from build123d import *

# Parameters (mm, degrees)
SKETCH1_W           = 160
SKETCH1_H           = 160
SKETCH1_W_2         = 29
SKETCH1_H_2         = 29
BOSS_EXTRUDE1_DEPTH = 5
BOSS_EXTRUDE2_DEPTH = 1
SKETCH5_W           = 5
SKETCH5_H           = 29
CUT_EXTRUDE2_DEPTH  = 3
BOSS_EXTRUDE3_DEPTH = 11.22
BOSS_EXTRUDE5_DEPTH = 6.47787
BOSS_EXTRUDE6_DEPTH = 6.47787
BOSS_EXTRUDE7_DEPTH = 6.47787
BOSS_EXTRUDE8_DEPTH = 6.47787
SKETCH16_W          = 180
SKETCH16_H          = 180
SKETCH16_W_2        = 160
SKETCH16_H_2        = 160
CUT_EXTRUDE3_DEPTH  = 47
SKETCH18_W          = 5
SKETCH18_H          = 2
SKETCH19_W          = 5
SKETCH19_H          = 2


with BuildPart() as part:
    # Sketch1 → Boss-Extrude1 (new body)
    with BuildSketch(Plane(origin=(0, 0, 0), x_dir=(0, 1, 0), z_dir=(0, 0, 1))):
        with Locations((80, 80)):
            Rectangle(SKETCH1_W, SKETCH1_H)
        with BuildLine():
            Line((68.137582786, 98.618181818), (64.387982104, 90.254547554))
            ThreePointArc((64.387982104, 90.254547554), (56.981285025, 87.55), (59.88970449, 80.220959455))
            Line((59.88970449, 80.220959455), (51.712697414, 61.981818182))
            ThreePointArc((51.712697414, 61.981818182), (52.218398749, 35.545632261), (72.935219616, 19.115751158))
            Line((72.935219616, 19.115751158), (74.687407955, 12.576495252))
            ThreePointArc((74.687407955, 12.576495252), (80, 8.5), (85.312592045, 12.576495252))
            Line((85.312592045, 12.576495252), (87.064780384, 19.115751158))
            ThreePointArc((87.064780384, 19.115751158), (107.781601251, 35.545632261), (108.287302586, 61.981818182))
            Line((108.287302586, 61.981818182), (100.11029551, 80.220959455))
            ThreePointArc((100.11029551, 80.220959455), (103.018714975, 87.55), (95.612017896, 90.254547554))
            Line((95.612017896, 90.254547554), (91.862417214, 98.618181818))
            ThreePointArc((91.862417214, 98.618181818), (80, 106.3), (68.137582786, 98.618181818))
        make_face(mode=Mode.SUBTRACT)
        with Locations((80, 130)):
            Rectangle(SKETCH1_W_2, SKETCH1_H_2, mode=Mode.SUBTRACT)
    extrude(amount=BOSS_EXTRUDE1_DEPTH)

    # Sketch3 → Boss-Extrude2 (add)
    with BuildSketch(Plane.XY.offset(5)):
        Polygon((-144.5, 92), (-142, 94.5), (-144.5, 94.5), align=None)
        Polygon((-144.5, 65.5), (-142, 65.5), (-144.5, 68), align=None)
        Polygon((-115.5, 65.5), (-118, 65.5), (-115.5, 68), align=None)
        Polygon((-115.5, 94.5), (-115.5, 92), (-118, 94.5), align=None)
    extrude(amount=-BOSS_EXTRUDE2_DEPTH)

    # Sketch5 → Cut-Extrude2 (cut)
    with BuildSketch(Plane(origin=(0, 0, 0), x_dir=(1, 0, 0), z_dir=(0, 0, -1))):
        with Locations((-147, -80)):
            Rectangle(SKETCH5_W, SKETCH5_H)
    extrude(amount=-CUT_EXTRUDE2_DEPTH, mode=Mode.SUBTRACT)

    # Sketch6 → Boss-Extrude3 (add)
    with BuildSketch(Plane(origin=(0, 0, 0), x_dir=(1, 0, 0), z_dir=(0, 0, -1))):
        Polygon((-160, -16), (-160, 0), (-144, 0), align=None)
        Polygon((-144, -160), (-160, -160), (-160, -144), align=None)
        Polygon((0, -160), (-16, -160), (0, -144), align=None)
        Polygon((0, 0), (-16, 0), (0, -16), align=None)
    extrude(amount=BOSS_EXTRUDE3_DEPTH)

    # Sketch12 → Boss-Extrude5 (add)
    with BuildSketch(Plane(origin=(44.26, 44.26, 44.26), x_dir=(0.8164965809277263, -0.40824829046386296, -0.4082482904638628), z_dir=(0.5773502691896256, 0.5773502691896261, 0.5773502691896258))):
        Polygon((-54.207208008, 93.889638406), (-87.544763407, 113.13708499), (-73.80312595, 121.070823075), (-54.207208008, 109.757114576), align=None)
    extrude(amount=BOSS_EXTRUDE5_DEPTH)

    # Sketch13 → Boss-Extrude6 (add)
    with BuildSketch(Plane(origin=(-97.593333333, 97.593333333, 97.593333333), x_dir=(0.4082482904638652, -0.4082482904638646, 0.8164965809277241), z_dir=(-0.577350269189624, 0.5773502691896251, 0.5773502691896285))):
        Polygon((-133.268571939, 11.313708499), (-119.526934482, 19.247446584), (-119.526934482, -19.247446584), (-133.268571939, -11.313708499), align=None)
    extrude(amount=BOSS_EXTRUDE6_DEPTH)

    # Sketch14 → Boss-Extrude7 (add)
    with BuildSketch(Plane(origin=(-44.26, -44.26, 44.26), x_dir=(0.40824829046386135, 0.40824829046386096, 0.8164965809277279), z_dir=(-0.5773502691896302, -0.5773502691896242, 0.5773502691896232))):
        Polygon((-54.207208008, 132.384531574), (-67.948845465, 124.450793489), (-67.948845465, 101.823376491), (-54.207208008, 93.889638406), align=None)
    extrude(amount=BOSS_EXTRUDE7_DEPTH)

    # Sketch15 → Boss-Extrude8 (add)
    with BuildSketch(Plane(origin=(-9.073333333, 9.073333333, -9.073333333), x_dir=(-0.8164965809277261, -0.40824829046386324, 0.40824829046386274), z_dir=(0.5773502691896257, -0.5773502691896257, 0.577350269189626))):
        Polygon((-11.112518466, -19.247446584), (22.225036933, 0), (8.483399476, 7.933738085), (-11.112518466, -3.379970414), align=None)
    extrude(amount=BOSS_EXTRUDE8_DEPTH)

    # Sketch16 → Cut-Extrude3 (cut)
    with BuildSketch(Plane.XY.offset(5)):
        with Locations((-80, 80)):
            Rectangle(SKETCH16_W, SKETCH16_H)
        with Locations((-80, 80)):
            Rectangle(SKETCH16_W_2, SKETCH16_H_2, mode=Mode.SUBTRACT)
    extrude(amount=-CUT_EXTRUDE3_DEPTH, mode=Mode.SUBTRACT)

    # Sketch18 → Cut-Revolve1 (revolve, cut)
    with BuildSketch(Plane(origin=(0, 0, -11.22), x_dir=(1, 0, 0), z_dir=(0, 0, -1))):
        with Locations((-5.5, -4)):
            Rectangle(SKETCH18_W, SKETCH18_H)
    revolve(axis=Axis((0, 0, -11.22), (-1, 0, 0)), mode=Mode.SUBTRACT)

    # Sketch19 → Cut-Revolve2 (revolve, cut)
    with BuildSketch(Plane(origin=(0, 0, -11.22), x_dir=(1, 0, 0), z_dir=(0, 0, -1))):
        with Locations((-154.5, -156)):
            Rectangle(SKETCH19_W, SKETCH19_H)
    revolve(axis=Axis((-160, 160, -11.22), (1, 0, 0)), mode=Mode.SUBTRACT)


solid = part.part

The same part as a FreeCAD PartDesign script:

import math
import FreeCAD as App
import Part
import Sketcher
Q = App.Units.Quantity


def add_polygon(sketch, points):
    """Adds a closed chain of lines whose ends are joined by coincident constraints."""
    first, n = sketch.GeometryCount, len(points)
    for a, b in zip(points, points[1:] + points[:1]):
        sketch.addGeometry(Part.LineSegment(App.Vector(*a, 0), App.Vector(*b, 0)), False)
    for i in range(n):
        sketch.addConstraint(Sketcher.Constraint("Coincident", first + i, 2, first + (i + 1) % n, 1))

doc = App.newDocument("Part")
body = doc.addObject("PartDesign::Body", "Body")

sketch1 = body.newObject("Sketcher::SketchObject", "Sketch")
sketch1.AttachmentSupport = (doc.getObject("XY_Plane"), [""])
sketch1.MapMode = "FlatFace"
add_polygon(sketch1, [(-160, 0), (0, 0), (0, 160), (-160, 160)])
sketch1.addGeometry(Part.LineSegment(App.Vector(-90, 64, 0), App.Vector(-99, 68, 0)), False)
sketch1.addGeometry(Part.ArcOfCircle(Part.Circle(App.Vector(-93, 80, 0), App.Vector(0, 0, 1), 13), math.radians(114), math.radians(246)), False)
sketch1.addGeometry(Part.LineSegment(App.Vector(-99, 92, 0), App.Vector(-90, 96, 0)), False)
sketch1.addGeometry(Part.ArcOfCircle(Part.Circle(App.Vector(-85, 98, 0), App.Vector(0, 0, 1), 6), math.radians(23), math.radians(206)), False)
sketch1.addGeometry(Part.LineSegment(App.Vector(-80, 100, 0), App.Vector(-62, 108, 0)), False)
sketch1.addGeometry(Part.ArcOfCircle(Part.Circle(App.Vector(-49, 80, 0), App.Vector(0, 0, 1), 31), math.radians(13), math.radians(114)), False)
sketch1.addGeometry(Part.LineSegment(App.Vector(-19, 87, 0), App.Vector(-13, 85, 0)), False)
sketch1.addGeometry(Part.ArcOfCircle(Part.Circle(App.Vector(-14, 80, 0), App.Vector(0, 0, 1), 6), math.radians(-75), math.radians(75)), False)
sketch1.addGeometry(Part.LineSegment(App.Vector(-13, 75, 0), App.Vector(-19, 73, 0)), False)
sketch1.addGeometry(Part.ArcOfCircle(Part.Circle(App.Vector(-49, 80, 0), App.Vector(0, 0, 1), 31), math.radians(-114), math.radians(-13)), False)
sketch1.addGeometry(Part.LineSegment(App.Vector(-62, 52, 0), App.Vector(-80, 60, 0)), False)
sketch1.addGeometry(Part.ArcOfCircle(Part.Circle(App.Vector(-85, 62, 0), App.Vector(0, 0, 1), 6), math.radians(154), math.radians(337)), False)
add_polygon(sketch1, [(-116, 94), (-116, 66), (-144, 66), (-144, 94)])
sketch1.addConstraint([
    Sketcher.Constraint("Tangent", 4, 2, 5, 2),
    Sketcher.Constraint("Tangent", 5, 1, 6, 1),
    Sketcher.Constraint("Coincident", 6, 2, 7, 2),
    Sketcher.Constraint("Coincident", 7, 1, 8, 1),
    Sketcher.Constraint("Tangent", 8, 2, 9, 2),
    Sketcher.Constraint("Coincident", 9, 1, 10, 1),
    Sketcher.Constraint("Tangent", 10, 2, 11, 2),
    Sketcher.Constraint("Tangent", 11, 1, 12, 1),
    Sketcher.Constraint("Coincident", 12, 2, 13, 2),
    Sketcher.Constraint("Tangent", 13, 1, 14, 1),
    Sketcher.Constraint("Coincident", 14, 2, 15, 2),
    Sketcher.Constraint("Coincident", 15, 1, 4, 1),
    Sketcher.Constraint("Horizontal", 0),
    Sketcher.Constraint("Vertical", 1),
    Sketcher.Constraint("Horizontal", 2),
    Sketcher.Constraint("Vertical", 3),
    Sketcher.Constraint("Vertical", 16),
    Sketcher.Constraint("Horizontal", 17),
    Sketcher.Constraint("Vertical", 18),
    Sketcher.Constraint("Horizontal", 19),
    Sketcher.Constraint("Coincident", 0, 2, -1, 1),
    Sketcher.Constraint("Coincident", 13, 3, 9, 3),
    Sketcher.Constraint("Equal", 7, 11),
    Sketcher.Constraint("Equal", 9, 13),
    Sketcher.Constraint("Equal", 11, 15),
    Sketcher.Constraint("Parallel", 6, 8),
    Sketcher.Constraint("Parallel", 4, 14),
    Sketcher.Constraint("Horizontal", 5, 3, 9, 3),
    Sketcher.Constraint("Horizontal", 9, 3, 11, 3),
    Sketcher.Constraint("Vertical", 7, 3, 15, 3),
    Sketcher.Constraint("Vertical", 4, 2, 5, 1),
    Sketcher.Constraint("Vertical", 10, 2, 11, 1),
    Sketcher.Constraint("Vertical", 7, 1, 14, 2),
    Sketcher.Constraint("Equal", 2, 1),
    Sketcher.Constraint("Equal", 19, 16),
    Sketcher.Constraint("Radius", 5, 13.0),
    Sketcher.Constraint("Radius", 9, 31.0),
    Sketcher.Constraint("Radius", 7, 5.5),
    Sketcher.Constraint("DistanceX", 0, 1, 0, 2, 160.0),
    Sketcher.Constraint("DistanceX", 17, 2, 17, 1, 29.0),
    Sketcher.Constraint("Angle", 10, Q("-15 deg")),
    Sketcher.Constraint("DistanceY", -1, 1, 5, 3, 80.0),
    Sketcher.Constraint("DistanceY", -1, 1, 7, 3, 98.0),
    Sketcher.Constraint("DistanceX", 11, 3, -1, 1, 14.0),
    Sketcher.Constraint("DistanceX", 5, 3, 7, 3, 8.0),
    Sketcher.Constraint("DistanceX", 7, 3, 9, 3, 36.0),
    Sketcher.Constraint("DistanceX", 5, 3, -1, 1, 93.3),
    Sketcher.Constraint("DistanceX", 16, 2, -1, 1, 115.5),
    Sketcher.Constraint("DistanceY", -1, 1, 16, 2, 65.5),
    Sketcher.Constraint("DistanceY", 5, 1, 6, 2, 3.749601),
])
pad1 = body.newObject("PartDesign::Pad", "Pad")
pad1.Profile = sketch1
pad1.Length = 5

sketch2 = body.newObject("Sketcher::SketchObject", "Sketch001")
sketch2.AttachmentSupport = (doc.getObject("XY_Plane"), [""])
sketch2.MapMode = "FlatFace"
sketch2.AttachmentOffset = App.Placement(App.Vector(0, 0, 5), App.Rotation())
add_polygon(sketch2, [(-144.5, 92), (-142, 94.5), (-144.5, 94.5)])
add_polygon(sketch2, [(-144.5, 65.5), (-142, 65.5), (-144.5, 68)])
add_polygon(sketch2, [(-118, 65.5), (-115.5, 65.5), (-115.5, 68)])
add_polygon(sketch2, [(-115.5, 92), (-115.5, 94.5), (-118, 94.5)])
sketch2.addConstraint([
    Sketcher.Constraint("Horizontal", 1),
    Sketcher.Constraint("Vertical", 2),
    Sketcher.Constraint("Horizontal", 3),
    Sketcher.Constraint("Vertical", 5),
    Sketcher.Constraint("Horizontal", 6),
    Sketcher.Constraint("Vertical", 7),
    Sketcher.Constraint("Vertical", 9),
    Sketcher.Constraint("Horizontal", 10),
    Sketcher.Constraint("Perpendicular", 0, 4),
    Sketcher.Constraint("Perpendicular", 4, 8),
    Sketcher.Constraint("Perpendicular", 8, 11),
    Sketcher.Constraint("Horizontal", 5, 2, 6, 2),
    Sketcher.Constraint("Horizontal", 4, 2, 7, 2),
    Sketcher.Constraint("Horizontal", 1, 2, 9, 2),
    Sketcher.Constraint("Horizontal", 2, 2, 11, 2),
    Sketcher.Constraint("Vertical", 0, 2, 3, 2),
    Sketcher.Constraint("Vertical", 2, 2, 4, 2),
    Sketcher.Constraint("Vertical", 7, 2, 9, 2),
    Sketcher.Constraint("Vertical", 8, 2, 10, 2),
    Sketcher.Constraint("DistanceX", 1, 2, 1, 1, 2.5),
    Sketcher.Constraint("DistanceX", 0, 2, -1, 1, 142.0),
    Sketcher.Constraint("DistanceY", -1, 1, 2, 2, 92.0),
    Sketcher.Constraint("DistanceY", -1, 1, 4, 2, 68.0),
    Sketcher.Constraint("DistanceX", 8, 2, -1, 1, 118.0),
])
pad2 = body.newObject("PartDesign::Pad", "Pad001")
pad2.Profile = sketch2
pad2.Length = 1
pad2.Reversed = True

sketch3 = body.newObject("Sketcher::SketchObject", "Sketch002")
sketch3.AttachmentSupport = (doc.getObject("XY_Plane"), [""])
sketch3.MapMode = "FlatFace"
add_polygon(sketch3, [(-150, 66), (-150, 94), (-144, 94), (-144, 66)])
sketch3.addConstraint([
    Sketcher.Constraint("Vertical", 0),
    Sketcher.Constraint("Horizontal", 1),
    Sketcher.Constraint("Vertical", 2),
    Sketcher.Constraint("Horizontal", 3),
    Sketcher.Constraint("DistanceX", 1, 1, 1, 2, 5.0),
    Sketcher.Constraint("DistanceY", 0, 1, 0, 2, 29.0),
    Sketcher.Constraint("DistanceX", 0, 2, -1, 1, 149.5),
    Sketcher.Constraint("DistanceY", -1, 1, 0, 2, 94.5),
])
pocket1 = body.newObject("PartDesign::Pocket", "Pocket")
pocket1.Profile = sketch3
pocket1.Length = 3
pocket1.Reversed = True

sketch4 = body.newObject("Sketcher::SketchObject", "Sketch003")
sketch4.AttachmentSupport = (doc.getObject("XY_Plane"), [""])
sketch4.MapMode = "FlatFace"
add_polygon(sketch4, [(-160, 0), (-160, 16), (-144, 0)])
add_polygon(sketch4, [(-160, 160), (-144, 160), (-160, 144)])
add_polygon(sketch4, [(-16, 160), (0, 160), (0, 144)])
add_polygon(sketch4, [(0, 0), (-16, 0), (0, 16)])
sketch4.addConstraint([
    Sketcher.Constraint("Vertical", 0),
    Sketcher.Constraint("Horizontal", 2),
    Sketcher.Constraint("Horizontal", 3),
    Sketcher.Constraint("Vertical", 5),
    Sketcher.Constraint("Horizontal", 6),
    Sketcher.Constraint("Vertical", 7),
    Sketcher.Constraint("Horizontal", 9),
    Sketcher.Constraint("Vertical", 11),
    Sketcher.Constraint("Coincident", 11, 2, -1, 1),
    Sketcher.Constraint("PointOnObject", 1, 2, -1),
    Sketcher.Constraint("PointOnObject", 6, 2, -2),
    Sketcher.Constraint("Perpendicular", 1, 4),
    Sketcher.Constraint("Perpendicular", 4, 8),
    Sketcher.Constraint("Perpendicular", 8, 10),
    Sketcher.Constraint("Horizontal", 5, 2, 6, 2),
    Sketcher.Constraint("Horizontal", 4, 2, 7, 2),
    Sketcher.Constraint("Horizontal", 0, 2, 10, 2),
    Sketcher.Constraint("Vertical", 1, 2, 3, 2),
    Sketcher.Constraint("Vertical", 2, 2, 4, 2),
    Sketcher.Constraint("Vertical", 8, 2, 9, 2),
    Sketcher.Constraint("DistanceX", 2, 2, 2, 1, 16.0),
    Sketcher.Constraint("DistanceX", 0, 2, -1, 1, 160.0),
    Sketcher.Constraint("DistanceY", -1, 1, 3, 2, 160.0),
])
pad3 = body.newObject("PartDesign::Pad", "Pad002")
pad3.Profile = sketch4
pad3.Length = 11.22
pad3.Reversed = True

sketch5 = body.newObject("Sketcher::SketchObject", "Sketch004")
sketch5.Placement = App.Placement(App.Vector(44.26, 44.26, 44.26), App.Rotation(App.Vector(0.816496581, -0.40824829, -0.40824829), App.Vector(0, 0.707106781, -0.707106781), App.Vector(0.577350269, 0.577350269, 0.577350269), "ZXY"))
add_polygon(sketch5, [(-88, 113), (-54, 94), (-54, 110), (-74, 121)])
sketch5.addConstraint([
    Sketcher.Constraint("Vertical", 1),
    Sketcher.Constraint("Parallel", 0, 2),
    Sketcher.Constraint("Angle", 0, Q("-30 deg")),
    Sketcher.Constraint("Angle", 3, Q("-150 deg")),
    Sketcher.Constraint("DistanceY", 1, 1, 1, 2, 15.867476),
    Sketcher.Constraint("DistanceY", -1, 1, 0, 2, 93.889638),
    Sketcher.Constraint("DistanceY", 1, 2, 2, 2, 11.313708),
    Sketcher.Constraint("DistanceX", 0, 2, -1, 1, 54.207208),
])
pad4 = body.newObject("PartDesign::Pad", "Pad003")
pad4.Profile = sketch5
pad4.Length = 6.47787

sketch6 = body.newObject("Sketcher::SketchObject", "Sketch005")
sketch6.Placement = App.Placement(App.Vector(-97.593333, 97.593333, 97.593333), App.Rotation(App.Vector(0.40824829, -0.40824829, 0.816496581), App.Vector(0.707106781, 0.707106781, 0), App.Vector(-0.577350269, 0.577350269, 0.577350269), "ZXY"))
add_polygon(sketch6, [(-120, 19), (-133, 11), (-133, -11), (-120, -19)])
sketch6.addConstraint([
    Sketcher.Constraint("Vertical", 1),
    Sketcher.Constraint("Vertical", 3),
    Sketcher.Constraint("Equal", 0, 2),
    Sketcher.Constraint("Angle", 0, Q("-150 deg")),
    Sketcher.Constraint("DistanceY", 1, 2, 1, 1, 22.627417),
    Sketcher.Constraint("DistanceY", 3, 1, 3, 2, 38.494893),
    Sketcher.Constraint("DistanceX", 0, 2, -1, 1, 133.268572),
    Sketcher.Constraint("DistanceY", -1, 1, 0, 2, 11.313708),
])
pad5 = body.newObject("PartDesign::Pad", "Pad004")
pad5.Profile = sketch6
pad5.Length = 6.47787

sketch7 = body.newObject("Sketcher::SketchObject", "Sketch006")
sketch7.Placement = App.Placement(App.Vector(-44.26, -44.26, 44.26), App.Rotation(App.Vector(0.40824829, 0.40824829, 0.816496581), App.Vector(-0.707106781, 0.707106781, 0), App.Vector(-0.577350269, -0.577350269, 0.577350269), "ZXY"))
add_polygon(sketch7, [(-54, 132), (-68, 124), (-68, 102), (-54, 94)])
sketch7.addConstraint([
    Sketcher.Constraint("Vertical", 1),
    Sketcher.Constraint("Vertical", 3),
    Sketcher.Constraint("Equal", 0, 2),
    Sketcher.Constraint("Angle", 0, Q("-150 deg")),
    Sketcher.Constraint("DistanceY", 1, 2, 1, 1, 22.627417),
    Sketcher.Constraint("DistanceY", 3, 1, 3, 2, 38.494893),
    Sketcher.Constraint("DistanceY", -1, 1, 2, 2, 93.889638),
    Sketcher.Constraint("DistanceX", 0, 2, -1, 1, 67.948845),
])
pad6 = body.newObject("PartDesign::Pad", "Pad005")
pad6.Profile = sketch7
pad6.Length = 6.47787

sketch8 = body.newObject("Sketcher::SketchObject", "Sketch007")
sketch8.Placement = App.Placement(App.Vector(-9.073333, 9.073333, -9.073333), App.Rotation(App.Vector(-0.816496581, -0.40824829, 0.40824829), App.Vector(0, -0.707106781, -0.707106781), App.Vector(0.577350269, -0.577350269, 0.577350269), "ZXY"))
add_polygon(sketch8, [(-11, -19), (22, 0), (8, 8), (-11, -3)])
sketch8.addConstraint([
    Sketcher.Constraint("Vertical", 3),
    Sketcher.Constraint("PointOnObject", 0, 2, -1),
    Sketcher.Constraint("Parallel", 0, 2),
    Sketcher.Constraint("Angle", 0, Q("30 deg")),
    Sketcher.Constraint("Angle", 1, Q("150 deg")),
    Sketcher.Constraint("DistanceX", -1, 1, 1, 2, 8.483399),
    Sketcher.Constraint("DistanceY", 3, 2, 3, 1, 15.867476),
    Sketcher.Constraint("DistanceX", 2, 2, -1, 1, 11.112518),
])
pad7 = body.newObject("PartDesign::Pad", "Pad006")
pad7.Profile = sketch8
pad7.Length = 6.47787

sketch9 = body.newObject("Sketcher::SketchObject", "Sketch008")
sketch9.AttachmentSupport = (doc.getObject("XY_Plane"), [""])
sketch9.MapMode = "FlatFace"
sketch9.AttachmentOffset = App.Placement(App.Vector(0, 0, 5), App.Rotation())
add_polygon(sketch9, [(-170, 170), (-170, -10), (10, -10), (10, 170)])
add_polygon(sketch9, [(0, 0), (-160, 0), (-160, 160), (0, 160)])
sketch9.addConstraint([
    Sketcher.Constraint("Vertical", 0),
    Sketcher.Constraint("Horizontal", 1),
    Sketcher.Constraint("Vertical", 2),
    Sketcher.Constraint("Horizontal", 3),
    Sketcher.Constraint("Horizontal", 4),
    Sketcher.Constraint("Vertical", 5),
    Sketcher.Constraint("Horizontal", 6),
    Sketcher.Constraint("Vertical", 7),
    Sketcher.Constraint("Coincident", 7, 2, -1, 1),
    Sketcher.Constraint("Equal", 3, 0),
    Sketcher.Constraint("Equal", 6, 5),
    Sketcher.Constraint("DistanceX", 1, 1, 1, 2, 180.0),
    Sketcher.Constraint("DistanceX", 4, 2, 4, 1, 160.0),
    Sketcher.Constraint("DistanceX", 0, 2, -1, 1, 170.0),
    Sketcher.Constraint("DistanceY", 0, 2, -1, 1, 10.0),
])
pocket2 = body.newObject("PartDesign::Pocket", "Pocket001")
pocket2.Profile = sketch9
pocket2.Length = 47

sketch10 = body.newObject("Sketcher::SketchObject", "Sketch009")
sketch10.AttachmentSupport = (doc.getObject("XY_Plane"), [""])
sketch10.MapMode = "FlatFace"
sketch10.AttachmentOffset = App.Placement(App.Vector(0, 0, -11.22), App.Rotation())
add_polygon(sketch10, [(-8, 3), (-8, 5), (-3, 5), (-3, 3)])
sketch10.addConstraint([
    Sketcher.Constraint("Vertical", 0),
    Sketcher.Constraint("Horizontal", 1),
    Sketcher.Constraint("Vertical", 2),
    Sketcher.Constraint("Horizontal", 3),
    Sketcher.Constraint("DistanceX", 1, 1, 1, 2, 5.0),
    Sketcher.Constraint("DistanceY", 0, 1, 0, 2, 2.0),
    Sketcher.Constraint("DistanceX", 0, 2, -1, 1, 8.0),
    Sketcher.Constraint("DistanceY", -1, 1, 0, 2, 5.0),
])
groove = body.newObject("PartDesign::Groove", "Groove")
groove.Profile = sketch10
groove.ReferenceAxis = (sketch10, ["H_Axis"])
groove.Angle = 360

sketch11 = body.newObject("Sketcher::SketchObject", "Sketch010")
sketch11.AttachmentSupport = (doc.getObject("XY_Plane"), [""])
sketch11.MapMode = "FlatFace"
sketch11.AttachmentOffset = App.Placement(App.Vector(0, 0, -11.22), App.Rotation())
add_polygon(sketch11, [(-157, 155), (-157, 157), (-152, 157), (-152, 155)])
sketch11.addGeometry(Part.LineSegment(App.Vector(-157, 160, 0), App.Vector(-152, 160, 0)), True)
sketch11.addConstraint([
    Sketcher.Constraint("Vertical", 0),
    Sketcher.Constraint("Horizontal", 1),
    Sketcher.Constraint("Vertical", 2),
    Sketcher.Constraint("Horizontal", 3),
    Sketcher.Constraint("Horizontal", 4),
    Sketcher.Constraint("Vertical", 3, 2, 4, 1),
    Sketcher.Constraint("Vertical", 2, 2, 4, 2),
    Sketcher.Constraint("DistanceX", 1, 1, 1, 2, 5.0),
    Sketcher.Constraint("DistanceY", 0, 1, 0, 2, 2.0),
    Sketcher.Constraint("DistanceX", 0, 2, -1, 1, 157.0),
    Sketcher.Constraint("DistanceY", -1, 1, 0, 2, 157.0),
    Sketcher.Constraint("DistanceY", -1, 1, 4, 1, 160.0),
])
groove2 = body.newObject("PartDesign::Groove", "Groove001")
groove2.Profile = sketch11
groove2.ReferenceAxis = (sketch11, ["Axis0"])
groove2.Angle = 360

doc.recompute()
